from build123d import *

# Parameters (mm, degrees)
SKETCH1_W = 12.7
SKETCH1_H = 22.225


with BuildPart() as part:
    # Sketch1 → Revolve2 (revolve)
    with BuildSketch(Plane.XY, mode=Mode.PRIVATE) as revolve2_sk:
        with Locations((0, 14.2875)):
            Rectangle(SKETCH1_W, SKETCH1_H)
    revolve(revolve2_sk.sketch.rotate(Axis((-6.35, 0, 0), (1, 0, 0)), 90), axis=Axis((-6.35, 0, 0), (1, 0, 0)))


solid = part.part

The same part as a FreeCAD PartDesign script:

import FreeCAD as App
import Part
import Sketcher
Q = App.Units.Quantity


def add_polygon(sketch, points):
    """Adds a closed chain of lines whose ends are joined by coincident constraints."""
    first, n = sketch.GeometryCount, len(points)
    for a, b in zip(points, points[1:] + points[:1]):
        sketch.addGeometry(Part.LineSegment(App.Vector(*a, 0), App.Vector(*b, 0)), False)
    for i in range(n):
        sketch.addConstraint(Sketcher.Constraint("Coincident", first + i, 2, first + (i + 1) % n, 1))

doc = App.newDocument("Part")
body = doc.addObject("PartDesign::Body", "Body")

# Sketch on XY plane
sketch1 = body.newObject("Sketcher::SketchObject", "Sketch")
sketch1.AttachmentSupport = (doc.getObject("XY_Plane"), [""])
sketch1.MapMode = "FlatFace"
add_polygon(sketch1, [(-6, 25), (-6, 3), (6, 3), (6, 25)])  # lines 0-3
sketch1.addConstraint(Sketcher.Constraint("Vertical", 0))
sketch1.addConstraint(Sketcher.Constraint("Horizontal", 1))
sketch1.addConstraint(Sketcher.Constraint("Vertical", 2))
sketch1.addConstraint(Sketcher.Constraint("Horizontal", 3))
sketch1.addConstraint(Sketcher.Constraint("DistanceX", 1, 1, 1, 2, Q("0.5 in")))
sketch1.addConstraint(Sketcher.Constraint("DistanceY", -1, 1, 2, 2, Q("1 in")))
sketch1.addConstraint(Sketcher.Constraint("DistanceY", 0, 2, 0, 1, Q("0.875 in")))
sketch1.addConstraint(Sketcher.Constraint("DistanceX", 0, 2, -1, 1, Q("0.25 in")))
revolution = body.newObject("PartDesign::Revolution", "Revolution")
revolution.Profile = sketch1
revolution.ReferenceAxis = (sketch1, ["H_Axis"])
revolution.Angle = 360

doc.recompute()
